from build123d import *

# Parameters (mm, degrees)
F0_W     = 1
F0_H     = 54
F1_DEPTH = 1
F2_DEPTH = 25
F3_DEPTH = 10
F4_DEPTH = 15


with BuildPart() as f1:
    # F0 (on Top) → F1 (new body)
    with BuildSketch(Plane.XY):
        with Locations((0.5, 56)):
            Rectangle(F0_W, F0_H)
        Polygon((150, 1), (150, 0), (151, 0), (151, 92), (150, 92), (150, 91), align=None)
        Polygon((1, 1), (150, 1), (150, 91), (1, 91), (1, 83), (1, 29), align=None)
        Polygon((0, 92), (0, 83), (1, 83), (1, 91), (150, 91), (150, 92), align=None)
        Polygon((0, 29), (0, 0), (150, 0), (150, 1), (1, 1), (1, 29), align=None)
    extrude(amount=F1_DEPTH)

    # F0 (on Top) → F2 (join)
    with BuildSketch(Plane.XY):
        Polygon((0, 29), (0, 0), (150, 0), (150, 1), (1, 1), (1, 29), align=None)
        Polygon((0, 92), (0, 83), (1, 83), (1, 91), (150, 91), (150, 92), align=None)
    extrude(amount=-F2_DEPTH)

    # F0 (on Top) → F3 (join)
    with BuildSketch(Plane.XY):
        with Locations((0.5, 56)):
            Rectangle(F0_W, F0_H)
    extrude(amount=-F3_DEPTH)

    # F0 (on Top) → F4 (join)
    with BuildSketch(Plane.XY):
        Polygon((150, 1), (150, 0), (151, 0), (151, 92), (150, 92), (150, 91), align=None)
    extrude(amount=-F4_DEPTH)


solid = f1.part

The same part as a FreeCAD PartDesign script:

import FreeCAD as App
import Part
import Sketcher
from FreeCAD import Vector

doc = App.newDocument("Part")
body = doc.addObject("PartDesign::Body", "Body")

# Sketch on XY plane
sketch1 = doc.addObject("Sketcher::SketchObject", "Sketch")
body.addObject(sketch1)
sketch1.AttachmentSupport = (doc.XY_Plane, [""])
sketch1.MapMode = "FlatFace"
sketch1.addGeometry(Part.LineSegment(Vector(151, 0, 0), Vector(151, 92, 0)), False)
sketch1.addGeometry(Part.LineSegment(Vector(151, 92, 0), Vector(0, 92, 0)), False)
sketch1.addGeometry(Part.LineSegment(Vector(0, 92, 0), Vector(0, 0, 0)), False)
sketch1.addGeometry(Part.LineSegment(Vector(0, 0, 0), Vector(151, 0, 0)), False)
sketch1.addConstraint(Sketcher.Constraint("Coincident", 0, 2, 1, 1))
sketch1.addConstraint(Sketcher.Constraint("Coincident", 1, 2, 2, 1))
sketch1.addConstraint(Sketcher.Constraint("Coincident", 2, 2, 3, 1))
sketch1.addConstraint(Sketcher.Constraint("Coincident", 3, 2, 0, 1))
sketch1.addConstraint(Sketcher.Constraint("Vertical", 0))
sketch1.addConstraint(Sketcher.Constraint("Horizontal", 1))
sketch1.addConstraint(Sketcher.Constraint("Vertical", 2))
sketch1.addConstraint(Sketcher.Constraint("Horizontal", 3))
sketch1.addConstraint(Sketcher.Constraint("Coincident", 2, 2, -1, 1))
sketch1.addConstraint(Sketcher.Constraint("DistanceX", 1, 2, 1, 1, 151.0))
sketch1.addConstraint(Sketcher.Constraint("DistanceY", 0, 1, 0, 2, 92.0))
pad1 = doc.addObject("PartDesign::Pad", "Pad")
body.addObject(pad1)
pad1.Profile = sketch1
pad1.Length = 1

# Sketch on XY plane
sketch2 = doc.addObject("Sketcher::SketchObject", "Sketch001")
body.addObject(sketch2)
sketch2.AttachmentSupport = (doc.XY_Plane, [""])
sketch2.MapMode = "FlatFace"
sketch2.addGeometry(Part.LineSegment(Vector(0, 29, 0), Vector(0, 0, 0)), False)
sketch2.addGeometry(Part.LineSegment(Vector(0, 0, 0), Vector(150, 0, 0)), False)
sketch2.addGeometry(Part.LineSegment(Vector(150, 0, 0), Vector(150, 1, 0)), False)
sketch2.addGeometry(Part.LineSegment(Vector(150, 1, 0), Vector(1, 1, 0)), False)
sketch2.addGeometry(Part.LineSegment(Vector(1, 1, 0), Vector(1, 29, 0)), False)
sketch2.addGeometry(Part.LineSegment(Vector(1, 29, 0), Vector(0, 29, 0)), False)
sketch2.addGeometry(Part.LineSegment(Vector(0, 92, 0), Vector(0, 83, 0)), False)
sketch2.addGeometry(Part.LineSegment(Vector(0, 83, 0), Vector(1, 83, 0)), False)
sketch2.addGeometry(Part.LineSegment(Vector(1, 83, 0), Vector(1, 91, 0)), False)
sketch2.addGeometry(Part.LineSegment(Vector(1, 91, 0), Vector(150, 91, 0)), False)
sketch2.addGeometry(Part.LineSegment(Vector(150, 91, 0), Vector(150, 92, 0)), False)
sketch2.addGeometry(Part.LineSegment(Vector(150, 92, 0), Vector(0, 92, 0)), False)
sketch2.addConstraint(Sketcher.Constraint("Coincident", 0, 2, 1, 1))
sketch2.addConstraint(Sketcher.Constraint("Coincident", 1, 2, 2, 1))
sketch2.addConstraint(Sketcher.Constraint("Coincident", 2, 2, 3, 1))
sketch2.addConstraint(Sketcher.Constraint("Coincident", 3, 2, 4, 1))
sketch2.addConstraint(Sketcher.Constraint("Coincident", 4, 2, 5, 1))
sketch2.addConstraint(Sketcher.Constraint("Coincident", 5, 2, 0, 1))
sketch2.addConstraint(Sketcher.Constraint("Coincident", 6, 2, 7, 1))
sketch2.addConstraint(Sketcher.Constraint("Coincident", 7, 2, 8, 1))
sketch2.addConstraint(Sketcher.Constraint("Coincident", 8, 2, 9, 1))
sketch2.addConstraint(Sketcher.Constraint("Coincident", 9, 2, 10, 1))
sketch2.addConstraint(Sketcher.Constraint("Coincident", 10, 2, 11, 1))
sketch2.addConstraint(Sketcher.Constraint("Coincident", 11, 2, 6, 1))
sketch2.addConstraint(Sketcher.Constraint("Vertical", 0))
sketch2.addConstraint(Sketcher.Constraint("Horizontal", 1))
sketch2.addConstraint(Sketcher.Constraint("Vertical", 2))
sketch2.addConstraint(Sketcher.Constraint("Horizontal", 3))
sketch2.addConstraint(Sketcher.Constraint("Vertical", 4))
sketch2.addConstraint(Sketcher.Constraint("Horizontal", 5))
sketch2.addConstraint(Sketcher.Constraint("Vertical", 6))
sketch2.addConstraint(Sketcher.Constraint("Horizontal", 7))
sketch2.addConstraint(Sketcher.Constraint("Vertical", 8))
sketch2.addConstraint(Sketcher.Constraint("Horizontal", 9))
sketch2.addConstraint(Sketcher.Constraint("Vertical", 10))
sketch2.addConstraint(Sketcher.Constraint("Horizontal", 11))
sketch2.addConstraint(Sketcher.Constraint("Coincident", 0, 2, -1, 1))
sketch2.addConstraint(Sketcher.Constraint("PointOnObject", 6, 2, -2))
sketch2.addConstraint(Sketcher.Constraint("Vertical", 4, 2, 7, 2))
sketch2.addConstraint(Sketcher.Constraint("Vertical", 2, 2, 9, 2))
sketch2.addConstraint(Sketcher.Constraint("Equal", 7, 2))
sketch2.addConstraint(Sketcher.Constraint("Equal", 2, 10))
sketch2.addConstraint(Sketcher.Constraint("DistanceX", 1, 1, 1, 2, 150.0))
sketch2.addConstraint(Sketcher.Constraint("DistanceX", 3, 2, 3, 1, 149.0))
sketch2.addConstraint(Sketcher.Constraint("DistanceY", 0, 2, 0, 1, 29.0))
sketch2.addConstraint(Sketcher.Constraint("DistanceY", 6, 2, 6, 1, 9.0))
sketch2.addConstraint(Sketcher.Constraint("DistanceY", -1, 1, 6, 2, 83.0))
pad2 = doc.addObject("PartDesign::Pad", "Pad001")
body.addObject(pad2)
pad2.Profile = sketch2
pad2.Length = 25
pad2.Reversed = True

# Sketch on XY plane
sketch3 = doc.addObject("Sketcher::SketchObject", "Sketch002")
body.addObject(sketch3)
sketch3.AttachmentSupport = (doc.XY_Plane, [""])
sketch3.MapMode = "FlatFace"
sketch3.addGeometry(Part.LineSegment(Vector(0, 83, 0), Vector(0, 29, 0)), False)
sketch3.addGeometry(Part.LineSegment(Vector(0, 29, 0), Vector(1, 29, 0)), False)
sketch3.addGeometry(Part.LineSegment(Vector(1, 29, 0), Vector(1, 83, 0)), False)
sketch3.addGeometry(Part.LineSegment(Vector(1, 83, 0), Vector(0, 83, 0)), False)
sketch3.addConstraint(Sketcher.Constraint("Coincident", 0, 2, 1, 1))
sketch3.addConstraint(Sketcher.Constraint("Coincident", 1, 2, 2, 1))
sketch3.addConstraint(Sketcher.Constraint("Coincident", 2, 2, 3, 1))
sketch3.addConstraint(Sketcher.Constraint("Coincident", 3, 2, 0, 1))
sketch3.addConstraint(Sketcher.Constraint("Vertical", 0))
sketch3.addConstraint(Sketcher.Constraint("Horizontal", 1))
sketch3.addConstraint(Sketcher.Constraint("Vertical", 2))
sketch3.addConstraint(Sketcher.Constraint("Horizontal", 3))
sketch3.addConstraint(Sketcher.Constraint("PointOnObject", 0, 2, -2))
sketch3.addConstraint(Sketcher.Constraint("DistanceX", 1, 1, 1, 2, 1.0))
sketch3.addConstraint(Sketcher.Constraint("DistanceY", 0, 2, 0, 1, 54.0))
sketch3.addConstraint(Sketcher.Constraint("DistanceY", -1, 1, 0, 2, 29.0))
pad3 = doc.addObject("PartDesign::Pad", "Pad002")
body.addObject(pad3)
pad3.Profile = sketch3
pad3.Length = 10
pad3.Reversed = True

# Sketch on XY plane
sketch4 = doc.addObject("Sketcher::SketchObject", "Sketch003")
body.addObject(sketch4)
sketch4.AttachmentSupport = (doc.XY_Plane, [""])
sketch4.MapMode = "FlatFace"
sketch4.addGeometry(Part.LineSegment(Vector(150, 0, 0), Vector(151, 0, 0)), False)
sketch4.addGeometry(Part.LineSegment(Vector(151, 0, 0), Vector(151, 92, 0)), False)
sketch4.addGeometry(Part.LineSegment(Vector(151, 92, 0), Vector(150, 92, 0)), False)
sketch4.addGeometry(Part.LineSegment(Vector(150, 92, 0), Vector(150, 0, 0)), False)
sketch4.addConstraint(Sketcher.Constraint("Coincident", 0, 2, 1, 1))
sketch4.addConstraint(Sketcher.Constraint("Coincident", 1, 2, 2, 1))
sketch4.addConstraint(Sketcher.Constraint("Coincident", 2, 2, 3, 1))
sketch4.addConstraint(Sketcher.Constraint("Coincident", 3, 2, 0, 1))
sketch4.addConstraint(Sketcher.Constraint("Horizontal", 0))
sketch4.addConstraint(Sketcher.Constraint("Vertical", 1))
sketch4.addConstraint(Sketcher.Constraint("Horizontal", 2))
sketch4.addConstraint(Sketcher.Constraint("Vertical", 3))
sketch4.addConstraint(Sketcher.Constraint("PointOnObject", 0, 2, -1))
sketch4.addConstraint(Sketcher.Constraint("DistanceX", 0, 1, 0, 2, 1.0))
sketch4.addConstraint(Sketcher.Constraint("DistanceY", 1, 1, 1, 2, 92.0))
sketch4.addConstraint(Sketcher.Constraint("DistanceX", -1, 1, 0, 2, 151.0))
pad4 = doc.addObject("PartDesign::Pad", "Pad003")
body.addObject(pad4)
pad4.Profile = sketch4
pad4.Length = 15
pad4.Reversed = True

doc.recompute()
